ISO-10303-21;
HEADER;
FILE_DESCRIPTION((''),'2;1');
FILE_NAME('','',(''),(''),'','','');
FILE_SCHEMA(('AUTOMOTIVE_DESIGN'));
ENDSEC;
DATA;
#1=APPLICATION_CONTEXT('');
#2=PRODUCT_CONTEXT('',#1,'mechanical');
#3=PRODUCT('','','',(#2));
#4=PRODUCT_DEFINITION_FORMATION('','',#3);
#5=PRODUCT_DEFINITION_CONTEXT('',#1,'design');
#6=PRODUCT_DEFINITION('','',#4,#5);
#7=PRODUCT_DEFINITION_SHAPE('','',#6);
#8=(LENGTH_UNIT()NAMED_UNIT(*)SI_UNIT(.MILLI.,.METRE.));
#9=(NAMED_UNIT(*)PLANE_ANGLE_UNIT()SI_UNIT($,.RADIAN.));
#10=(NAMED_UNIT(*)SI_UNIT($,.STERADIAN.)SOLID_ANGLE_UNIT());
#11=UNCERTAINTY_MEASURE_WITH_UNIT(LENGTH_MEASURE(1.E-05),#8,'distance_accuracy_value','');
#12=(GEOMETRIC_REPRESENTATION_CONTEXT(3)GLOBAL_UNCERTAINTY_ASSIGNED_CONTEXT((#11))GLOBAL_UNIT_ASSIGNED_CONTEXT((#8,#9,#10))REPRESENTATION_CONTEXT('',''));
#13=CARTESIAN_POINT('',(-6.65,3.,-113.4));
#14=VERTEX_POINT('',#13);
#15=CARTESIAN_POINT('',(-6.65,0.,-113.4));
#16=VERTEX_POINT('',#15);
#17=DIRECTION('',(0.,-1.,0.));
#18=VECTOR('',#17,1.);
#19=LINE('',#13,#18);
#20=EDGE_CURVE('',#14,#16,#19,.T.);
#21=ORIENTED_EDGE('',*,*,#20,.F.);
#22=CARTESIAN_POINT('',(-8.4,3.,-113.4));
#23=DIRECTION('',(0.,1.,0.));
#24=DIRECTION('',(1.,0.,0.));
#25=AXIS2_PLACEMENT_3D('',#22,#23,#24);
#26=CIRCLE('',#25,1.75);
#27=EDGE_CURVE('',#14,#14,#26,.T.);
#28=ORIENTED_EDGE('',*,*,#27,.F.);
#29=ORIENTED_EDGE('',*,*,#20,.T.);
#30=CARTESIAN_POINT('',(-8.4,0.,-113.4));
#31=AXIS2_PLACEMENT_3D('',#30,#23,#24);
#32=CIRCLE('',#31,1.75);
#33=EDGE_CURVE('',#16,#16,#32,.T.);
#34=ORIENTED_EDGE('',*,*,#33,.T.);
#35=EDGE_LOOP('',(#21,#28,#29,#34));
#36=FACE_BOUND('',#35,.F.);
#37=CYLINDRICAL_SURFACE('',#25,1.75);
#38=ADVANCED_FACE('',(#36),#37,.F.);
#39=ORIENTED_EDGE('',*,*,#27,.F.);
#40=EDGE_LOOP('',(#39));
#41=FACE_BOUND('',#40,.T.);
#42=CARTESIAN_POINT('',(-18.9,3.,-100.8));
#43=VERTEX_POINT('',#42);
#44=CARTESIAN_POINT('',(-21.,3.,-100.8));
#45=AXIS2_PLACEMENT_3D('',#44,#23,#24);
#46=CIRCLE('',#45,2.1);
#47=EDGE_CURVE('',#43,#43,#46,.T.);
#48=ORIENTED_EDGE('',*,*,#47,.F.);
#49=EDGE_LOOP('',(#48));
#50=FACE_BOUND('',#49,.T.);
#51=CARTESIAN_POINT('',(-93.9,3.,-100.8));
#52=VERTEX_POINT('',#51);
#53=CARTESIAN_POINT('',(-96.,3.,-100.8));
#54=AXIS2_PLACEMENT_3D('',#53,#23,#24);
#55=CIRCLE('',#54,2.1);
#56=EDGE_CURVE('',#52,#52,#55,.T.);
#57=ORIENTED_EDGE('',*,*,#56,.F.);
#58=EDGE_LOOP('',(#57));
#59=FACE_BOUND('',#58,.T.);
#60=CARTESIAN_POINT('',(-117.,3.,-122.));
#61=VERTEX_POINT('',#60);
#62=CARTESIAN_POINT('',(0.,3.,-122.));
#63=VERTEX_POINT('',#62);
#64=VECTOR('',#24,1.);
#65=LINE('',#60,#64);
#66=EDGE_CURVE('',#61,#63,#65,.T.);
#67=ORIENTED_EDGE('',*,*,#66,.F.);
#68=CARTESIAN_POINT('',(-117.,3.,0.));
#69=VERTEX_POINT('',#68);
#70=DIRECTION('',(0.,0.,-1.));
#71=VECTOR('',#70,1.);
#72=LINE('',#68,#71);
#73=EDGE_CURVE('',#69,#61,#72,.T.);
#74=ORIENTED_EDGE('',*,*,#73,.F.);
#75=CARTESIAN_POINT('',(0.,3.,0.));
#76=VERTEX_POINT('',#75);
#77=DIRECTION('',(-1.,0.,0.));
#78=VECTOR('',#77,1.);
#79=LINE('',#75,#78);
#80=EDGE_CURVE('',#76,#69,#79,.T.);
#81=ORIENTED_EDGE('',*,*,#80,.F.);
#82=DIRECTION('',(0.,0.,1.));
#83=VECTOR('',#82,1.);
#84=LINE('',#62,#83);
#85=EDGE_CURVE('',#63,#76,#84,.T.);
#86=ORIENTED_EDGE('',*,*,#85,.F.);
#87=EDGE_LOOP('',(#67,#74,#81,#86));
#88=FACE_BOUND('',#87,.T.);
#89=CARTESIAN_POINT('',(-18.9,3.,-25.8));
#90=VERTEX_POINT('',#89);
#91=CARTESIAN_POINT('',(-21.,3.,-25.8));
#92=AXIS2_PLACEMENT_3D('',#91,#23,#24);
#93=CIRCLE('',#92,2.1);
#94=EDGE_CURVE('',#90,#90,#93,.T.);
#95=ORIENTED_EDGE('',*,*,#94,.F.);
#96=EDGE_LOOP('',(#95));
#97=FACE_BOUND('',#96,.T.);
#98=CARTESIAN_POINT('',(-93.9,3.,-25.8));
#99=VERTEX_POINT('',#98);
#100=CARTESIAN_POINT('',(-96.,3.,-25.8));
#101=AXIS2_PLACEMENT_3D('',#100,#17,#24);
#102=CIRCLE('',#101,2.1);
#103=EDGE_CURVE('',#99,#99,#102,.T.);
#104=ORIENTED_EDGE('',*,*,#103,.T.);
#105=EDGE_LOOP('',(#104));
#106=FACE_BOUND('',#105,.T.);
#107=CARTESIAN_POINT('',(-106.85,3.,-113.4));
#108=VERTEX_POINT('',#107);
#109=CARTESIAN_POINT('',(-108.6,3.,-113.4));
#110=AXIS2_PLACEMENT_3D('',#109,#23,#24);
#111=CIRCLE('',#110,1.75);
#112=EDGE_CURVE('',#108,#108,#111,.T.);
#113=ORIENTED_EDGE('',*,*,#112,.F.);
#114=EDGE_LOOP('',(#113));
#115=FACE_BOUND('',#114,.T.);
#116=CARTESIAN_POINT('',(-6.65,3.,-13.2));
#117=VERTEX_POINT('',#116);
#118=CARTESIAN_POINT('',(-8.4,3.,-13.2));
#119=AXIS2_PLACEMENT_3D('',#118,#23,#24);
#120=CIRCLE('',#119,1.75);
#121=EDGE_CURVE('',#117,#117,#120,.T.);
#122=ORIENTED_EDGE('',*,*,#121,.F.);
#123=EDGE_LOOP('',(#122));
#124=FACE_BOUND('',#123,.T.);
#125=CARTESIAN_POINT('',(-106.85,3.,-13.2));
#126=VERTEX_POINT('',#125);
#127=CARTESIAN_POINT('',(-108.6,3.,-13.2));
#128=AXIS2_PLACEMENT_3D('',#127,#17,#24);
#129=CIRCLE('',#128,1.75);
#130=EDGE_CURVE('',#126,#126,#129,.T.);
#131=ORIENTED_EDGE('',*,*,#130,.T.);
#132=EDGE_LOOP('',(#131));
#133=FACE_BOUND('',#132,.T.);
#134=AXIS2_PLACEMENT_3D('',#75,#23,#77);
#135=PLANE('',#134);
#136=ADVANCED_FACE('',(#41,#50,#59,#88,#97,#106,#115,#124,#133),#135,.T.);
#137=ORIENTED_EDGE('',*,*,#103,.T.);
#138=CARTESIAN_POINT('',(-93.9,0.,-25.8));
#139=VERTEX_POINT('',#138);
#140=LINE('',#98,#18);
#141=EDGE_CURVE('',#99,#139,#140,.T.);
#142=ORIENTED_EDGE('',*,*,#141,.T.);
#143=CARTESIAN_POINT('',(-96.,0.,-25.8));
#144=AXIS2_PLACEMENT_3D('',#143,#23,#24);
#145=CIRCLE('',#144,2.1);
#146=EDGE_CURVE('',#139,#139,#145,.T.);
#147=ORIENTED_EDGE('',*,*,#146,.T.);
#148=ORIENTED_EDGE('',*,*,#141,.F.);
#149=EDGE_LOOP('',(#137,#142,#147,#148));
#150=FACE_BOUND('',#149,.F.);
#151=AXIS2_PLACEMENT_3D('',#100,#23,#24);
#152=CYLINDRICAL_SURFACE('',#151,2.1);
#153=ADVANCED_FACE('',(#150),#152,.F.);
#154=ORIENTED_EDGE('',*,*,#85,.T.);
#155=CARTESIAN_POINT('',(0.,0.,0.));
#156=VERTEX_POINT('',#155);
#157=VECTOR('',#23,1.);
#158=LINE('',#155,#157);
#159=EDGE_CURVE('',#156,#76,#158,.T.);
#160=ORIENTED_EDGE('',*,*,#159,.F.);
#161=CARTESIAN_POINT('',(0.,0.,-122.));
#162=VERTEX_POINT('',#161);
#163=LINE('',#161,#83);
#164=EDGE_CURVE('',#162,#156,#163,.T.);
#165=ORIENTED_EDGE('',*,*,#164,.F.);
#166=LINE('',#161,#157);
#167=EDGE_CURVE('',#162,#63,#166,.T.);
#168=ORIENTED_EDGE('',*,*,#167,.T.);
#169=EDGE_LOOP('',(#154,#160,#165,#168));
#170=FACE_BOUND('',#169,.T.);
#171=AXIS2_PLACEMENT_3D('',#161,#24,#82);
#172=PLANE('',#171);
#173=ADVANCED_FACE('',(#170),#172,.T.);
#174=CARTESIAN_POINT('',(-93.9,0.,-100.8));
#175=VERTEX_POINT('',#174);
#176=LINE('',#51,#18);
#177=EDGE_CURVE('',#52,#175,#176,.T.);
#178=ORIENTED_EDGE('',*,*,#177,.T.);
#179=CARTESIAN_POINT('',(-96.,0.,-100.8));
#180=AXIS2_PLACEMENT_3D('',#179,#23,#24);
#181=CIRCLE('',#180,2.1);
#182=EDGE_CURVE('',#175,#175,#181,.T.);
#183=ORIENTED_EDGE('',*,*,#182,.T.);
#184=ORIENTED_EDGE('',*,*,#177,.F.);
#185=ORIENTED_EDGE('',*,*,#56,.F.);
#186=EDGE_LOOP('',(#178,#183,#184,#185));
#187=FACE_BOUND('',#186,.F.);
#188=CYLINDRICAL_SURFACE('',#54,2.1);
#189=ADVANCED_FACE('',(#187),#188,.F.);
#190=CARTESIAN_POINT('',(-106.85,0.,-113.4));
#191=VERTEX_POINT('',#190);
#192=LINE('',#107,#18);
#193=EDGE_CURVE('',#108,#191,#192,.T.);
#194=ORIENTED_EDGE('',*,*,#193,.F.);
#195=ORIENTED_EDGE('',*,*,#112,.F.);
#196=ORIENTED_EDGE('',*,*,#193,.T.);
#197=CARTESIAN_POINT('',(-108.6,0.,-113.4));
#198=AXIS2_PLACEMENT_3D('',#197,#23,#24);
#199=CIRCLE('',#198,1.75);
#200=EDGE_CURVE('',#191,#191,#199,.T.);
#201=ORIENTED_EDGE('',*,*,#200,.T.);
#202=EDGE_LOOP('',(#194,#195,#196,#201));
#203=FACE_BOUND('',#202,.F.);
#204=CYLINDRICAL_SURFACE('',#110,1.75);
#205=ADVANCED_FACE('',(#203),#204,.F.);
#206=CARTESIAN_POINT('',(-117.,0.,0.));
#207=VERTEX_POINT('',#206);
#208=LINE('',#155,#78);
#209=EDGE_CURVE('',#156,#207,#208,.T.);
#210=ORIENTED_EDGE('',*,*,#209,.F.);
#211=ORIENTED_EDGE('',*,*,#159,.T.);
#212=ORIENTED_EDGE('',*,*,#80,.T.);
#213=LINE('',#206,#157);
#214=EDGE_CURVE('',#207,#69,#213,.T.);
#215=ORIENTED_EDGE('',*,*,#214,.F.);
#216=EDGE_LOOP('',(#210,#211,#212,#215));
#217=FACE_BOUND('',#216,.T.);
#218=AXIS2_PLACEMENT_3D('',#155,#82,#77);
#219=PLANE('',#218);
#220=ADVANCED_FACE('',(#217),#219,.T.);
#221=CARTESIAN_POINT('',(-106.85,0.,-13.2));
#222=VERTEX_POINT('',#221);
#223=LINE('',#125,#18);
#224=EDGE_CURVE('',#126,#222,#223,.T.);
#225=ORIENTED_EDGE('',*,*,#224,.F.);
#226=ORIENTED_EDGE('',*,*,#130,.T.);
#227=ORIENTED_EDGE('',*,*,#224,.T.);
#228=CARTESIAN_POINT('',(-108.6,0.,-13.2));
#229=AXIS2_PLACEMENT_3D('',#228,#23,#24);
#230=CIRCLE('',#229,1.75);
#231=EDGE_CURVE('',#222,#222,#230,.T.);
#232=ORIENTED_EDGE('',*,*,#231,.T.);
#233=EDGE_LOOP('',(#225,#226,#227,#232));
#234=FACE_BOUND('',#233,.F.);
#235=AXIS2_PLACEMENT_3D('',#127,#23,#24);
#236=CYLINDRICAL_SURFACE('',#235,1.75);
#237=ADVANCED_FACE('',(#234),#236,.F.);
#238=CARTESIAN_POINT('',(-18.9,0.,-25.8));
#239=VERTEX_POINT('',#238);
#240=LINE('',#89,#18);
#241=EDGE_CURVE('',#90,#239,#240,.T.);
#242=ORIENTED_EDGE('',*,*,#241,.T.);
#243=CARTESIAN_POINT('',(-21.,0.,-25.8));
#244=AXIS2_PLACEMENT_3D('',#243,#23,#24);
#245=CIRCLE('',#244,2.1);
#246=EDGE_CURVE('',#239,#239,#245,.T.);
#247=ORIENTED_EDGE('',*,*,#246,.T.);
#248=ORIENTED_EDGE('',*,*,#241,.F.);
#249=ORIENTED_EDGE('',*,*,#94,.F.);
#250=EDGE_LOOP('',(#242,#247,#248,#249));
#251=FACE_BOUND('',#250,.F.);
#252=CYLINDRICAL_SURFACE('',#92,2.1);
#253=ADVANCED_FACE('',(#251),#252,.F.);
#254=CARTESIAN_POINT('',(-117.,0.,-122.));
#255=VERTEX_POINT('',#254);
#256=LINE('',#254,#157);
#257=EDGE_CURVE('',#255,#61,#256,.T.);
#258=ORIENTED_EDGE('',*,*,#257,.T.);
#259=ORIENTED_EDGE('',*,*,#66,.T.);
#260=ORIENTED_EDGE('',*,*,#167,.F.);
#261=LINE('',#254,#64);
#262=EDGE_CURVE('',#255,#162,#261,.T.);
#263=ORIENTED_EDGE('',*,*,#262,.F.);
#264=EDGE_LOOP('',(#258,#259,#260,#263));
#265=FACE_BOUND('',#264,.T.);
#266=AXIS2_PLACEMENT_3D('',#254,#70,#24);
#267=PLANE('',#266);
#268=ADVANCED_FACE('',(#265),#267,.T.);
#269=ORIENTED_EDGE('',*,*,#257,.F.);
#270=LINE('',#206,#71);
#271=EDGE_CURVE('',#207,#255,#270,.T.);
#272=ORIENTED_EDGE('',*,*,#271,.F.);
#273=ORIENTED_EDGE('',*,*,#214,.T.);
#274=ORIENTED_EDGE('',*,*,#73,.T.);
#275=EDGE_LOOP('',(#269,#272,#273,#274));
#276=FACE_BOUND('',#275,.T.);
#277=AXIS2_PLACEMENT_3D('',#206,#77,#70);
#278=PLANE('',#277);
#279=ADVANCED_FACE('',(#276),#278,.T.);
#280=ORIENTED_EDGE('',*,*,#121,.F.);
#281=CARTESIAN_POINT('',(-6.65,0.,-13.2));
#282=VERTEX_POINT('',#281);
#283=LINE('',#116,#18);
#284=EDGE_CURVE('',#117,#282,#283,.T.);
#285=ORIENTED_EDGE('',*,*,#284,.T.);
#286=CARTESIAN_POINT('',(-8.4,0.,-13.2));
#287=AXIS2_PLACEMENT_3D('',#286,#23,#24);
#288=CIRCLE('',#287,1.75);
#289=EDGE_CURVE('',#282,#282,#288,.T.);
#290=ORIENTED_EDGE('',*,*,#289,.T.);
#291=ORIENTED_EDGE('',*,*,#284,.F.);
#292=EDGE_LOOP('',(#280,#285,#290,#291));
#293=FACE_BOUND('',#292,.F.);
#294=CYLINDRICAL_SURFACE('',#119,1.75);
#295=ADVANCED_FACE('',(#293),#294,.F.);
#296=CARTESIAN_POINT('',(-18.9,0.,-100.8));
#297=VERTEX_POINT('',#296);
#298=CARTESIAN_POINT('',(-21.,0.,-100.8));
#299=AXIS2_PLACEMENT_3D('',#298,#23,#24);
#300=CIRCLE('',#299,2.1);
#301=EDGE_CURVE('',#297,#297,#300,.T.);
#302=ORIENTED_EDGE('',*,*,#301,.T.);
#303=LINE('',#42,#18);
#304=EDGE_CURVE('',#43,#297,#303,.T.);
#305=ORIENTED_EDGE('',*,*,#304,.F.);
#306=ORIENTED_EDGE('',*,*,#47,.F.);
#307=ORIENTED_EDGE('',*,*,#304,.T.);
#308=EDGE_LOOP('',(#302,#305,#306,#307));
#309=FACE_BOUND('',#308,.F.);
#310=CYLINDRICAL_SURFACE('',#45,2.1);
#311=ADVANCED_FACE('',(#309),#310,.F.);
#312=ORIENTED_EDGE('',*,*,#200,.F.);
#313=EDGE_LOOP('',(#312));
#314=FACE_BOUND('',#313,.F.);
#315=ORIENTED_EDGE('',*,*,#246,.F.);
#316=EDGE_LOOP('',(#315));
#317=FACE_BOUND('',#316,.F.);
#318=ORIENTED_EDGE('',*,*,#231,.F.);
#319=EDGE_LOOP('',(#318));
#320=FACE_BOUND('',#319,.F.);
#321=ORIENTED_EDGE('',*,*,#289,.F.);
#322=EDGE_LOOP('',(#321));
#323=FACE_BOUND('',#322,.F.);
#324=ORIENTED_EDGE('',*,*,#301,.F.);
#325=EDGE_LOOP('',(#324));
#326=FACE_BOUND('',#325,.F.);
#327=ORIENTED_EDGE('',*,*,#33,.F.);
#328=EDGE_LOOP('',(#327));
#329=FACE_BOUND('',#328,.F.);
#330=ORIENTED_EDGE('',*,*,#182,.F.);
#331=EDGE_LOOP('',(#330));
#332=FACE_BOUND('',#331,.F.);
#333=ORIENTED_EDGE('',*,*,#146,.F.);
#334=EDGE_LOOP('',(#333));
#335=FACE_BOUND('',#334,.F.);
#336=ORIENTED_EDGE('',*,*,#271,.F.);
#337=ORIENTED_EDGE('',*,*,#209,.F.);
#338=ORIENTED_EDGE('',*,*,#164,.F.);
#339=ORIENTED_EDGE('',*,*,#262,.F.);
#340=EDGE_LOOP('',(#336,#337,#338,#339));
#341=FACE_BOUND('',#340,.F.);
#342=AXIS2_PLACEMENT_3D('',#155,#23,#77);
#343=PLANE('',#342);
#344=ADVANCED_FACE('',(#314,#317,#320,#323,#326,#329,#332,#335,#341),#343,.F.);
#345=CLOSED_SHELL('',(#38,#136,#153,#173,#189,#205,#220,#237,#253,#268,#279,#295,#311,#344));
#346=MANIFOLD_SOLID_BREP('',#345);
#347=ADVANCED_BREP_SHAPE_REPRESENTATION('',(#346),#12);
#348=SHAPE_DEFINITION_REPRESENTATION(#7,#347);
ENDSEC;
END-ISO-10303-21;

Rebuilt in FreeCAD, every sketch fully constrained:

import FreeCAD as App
import Part
import Sketcher

V = App.Vector

doc = App.newDocument("Part")
body = doc.addObject("PartDesign::Body", "Body")

# Sketch on XZ plane
sketch1 = body.newObject("Sketcher::SketchObject", "Sketch")
sketch1.AttachmentSupport = (doc.getObject("XZ_Plane"), [""])
sketch1.MapMode = "FlatFace"
sketch1.addGeometry(Part.LineSegment(V(-117, 0, 0), V(0, 0, 0)), False)
sketch1.addGeometry(Part.LineSegment(V(0, 0, 0), V(0, -122, 0)), False)
sketch1.addGeometry(Part.LineSegment(V(0, -122, 0), V(-117, -122, 0)), False)
sketch1.addGeometry(Part.LineSegment(V(-117, -122, 0), V(-117, 0, 0)), False)
sketch1.addConstraint(Sketcher.Constraint("Coincident", 0, 2, 1, 1))
sketch1.addConstraint(Sketcher.Constraint("Coincident", 1, 2, 2, 1))
sketch1.addConstraint(Sketcher.Constraint("Coincident", 2, 2, 3, 1))
sketch1.addConstraint(Sketcher.Constraint("Coincident", 3, 2, 0, 1))
sketch1.addConstraint(Sketcher.Constraint("Horizontal", 0))
sketch1.addConstraint(Sketcher.Constraint("Vertical", 1))
sketch1.addConstraint(Sketcher.Constraint("Horizontal", 2))
sketch1.addConstraint(Sketcher.Constraint("Vertical", 3))
sketch1.addConstraint(Sketcher.Constraint("Coincident", 0, 2, -1, 1))
sketch1.addConstraint(Sketcher.Constraint("DistanceX", 0, 1, 0, 2, 117.0))
sketch1.addConstraint(Sketcher.Constraint("DistanceY", 1, 2, 1, 1, 122.0))
pad1 = body.newObject("PartDesign::Pad", "Pad")
pad1.Profile = sketch1
pad1.Length = 3
pad1.Reversed = True

# Sketch on XZ plane
sketch2 = body.newObject("Sketcher::SketchObject", "Sketch001")
sketch2.AttachmentSupport = (doc.getObject("XZ_Plane"), [""])
sketch2.MapMode = "FlatFace"
sketch2.AttachmentOffset = App.Placement(V(0, 0, -3), App.Rotation())
sketch2.addGeometry(Part.Circle(V(-96, -25.8, 0), V(0, 0, 1), 2.1), False)
sketch2.addGeometry(Part.Circle(V(-108.6, -13.2, 0), V(0, 0, 1), 1.75), False)
sketch2.addGeometry(Part.Circle(V(-96, -100.8, 0), V(0, 0, 1), 2.1), False)
sketch2.addGeometry(Part.Circle(V(-21, -25.8, 0), V(0, 0, 1), 2.1), False)
sketch2.addGeometry(Part.Circle(V(-21, -100.8, 0), V(0, 0, 1), 2.1), False)
sketch2.addGeometry(Part.Circle(V(-108.6, -113.4, 0), V(0, 0, 1), 1.75), False)
sketch2.addGeometry(Part.Circle(V(-8.4, -13.2, 0), V(0, 0, 1), 1.75), False)
sketch2.addGeometry(Part.Circle(V(-8.4, -113.4, 0), V(0, 0, 1), 1.75), False)
sketch2.addConstraint(Sketcher.Constraint("Equal", 0, 2))
sketch2.addConstraint(Sketcher.Constraint("Equal", 2, 3))
sketch2.addConstraint(Sketcher.Constraint("Equal", 3, 4))
sketch2.addConstraint(Sketcher.Constraint("Equal", 1, 5))
sketch2.addConstraint(Sketcher.Constraint("Equal", 5, 6))
sketch2.addConstraint(Sketcher.Constraint("Equal", 6, 7))
sketch2.addConstraint(Sketcher.Constraint("Horizontal", 0, 3, 3, 3))
sketch2.addConstraint(Sketcher.Constraint("Horizontal", 2, 3, 4, 3))
sketch2.addConstraint(Sketcher.Constraint("Horizontal", 1, 3, 6, 3))
sketch2.addConstraint(Sketcher.Constraint("Horizontal", 5, 3, 7, 3))
sketch2.addConstraint(Sketcher.Constraint("Vertical", 0, 3, 2, 3))
sketch2.addConstraint(Sketcher.Constraint("Vertical", 3, 3, 4, 3))
sketch2.addConstraint(Sketcher.Constraint("Vertical", 1, 3, 5, 3))
sketch2.addConstraint(Sketcher.Constraint("Vertical", 6, 3, 7, 3))
sketch2.addConstraint(Sketcher.Constraint("Diameter", 0, 4.2))
sketch2.addConstraint(Sketcher.Constraint("Diameter", 1, 3.5))
sketch2.addConstraint(Sketcher.Constraint("DistanceX", 3, 3, -1, 1, 21.0))
sketch2.addConstraint(Sketcher.Constraint("DistanceY", 2, 3, 0, 3, 75.0))
sketch2.addConstraint(Sketcher.Constraint("DistanceX", 0, 3, 3, 3, 75.0))
sketch2.addConstraint(Sketcher.Constraint("DistanceY", 0, 3, -1, 1, 25.8))
sketch2.addConstraint(Sketcher.Constraint("DistanceY", 1, 3, -1, 1, 13.2))
sketch2.addConstraint(Sketcher.Constraint("DistanceX", 6, 3, -1, 1, 8.4))
sketch2.addConstraint(Sketcher.Constraint("DistanceY", 5, 3, 1, 3, 100.2))
sketch2.addConstraint(Sketcher.Constraint("DistanceX", 1, 3, 6, 3, 100.2))
pocket1 = body.newObject("PartDesign::Pocket", "Pocket")
pocket1.Profile = sketch2
pocket1.Length = 3
pocket1.Reversed = True

doc.recompute()
